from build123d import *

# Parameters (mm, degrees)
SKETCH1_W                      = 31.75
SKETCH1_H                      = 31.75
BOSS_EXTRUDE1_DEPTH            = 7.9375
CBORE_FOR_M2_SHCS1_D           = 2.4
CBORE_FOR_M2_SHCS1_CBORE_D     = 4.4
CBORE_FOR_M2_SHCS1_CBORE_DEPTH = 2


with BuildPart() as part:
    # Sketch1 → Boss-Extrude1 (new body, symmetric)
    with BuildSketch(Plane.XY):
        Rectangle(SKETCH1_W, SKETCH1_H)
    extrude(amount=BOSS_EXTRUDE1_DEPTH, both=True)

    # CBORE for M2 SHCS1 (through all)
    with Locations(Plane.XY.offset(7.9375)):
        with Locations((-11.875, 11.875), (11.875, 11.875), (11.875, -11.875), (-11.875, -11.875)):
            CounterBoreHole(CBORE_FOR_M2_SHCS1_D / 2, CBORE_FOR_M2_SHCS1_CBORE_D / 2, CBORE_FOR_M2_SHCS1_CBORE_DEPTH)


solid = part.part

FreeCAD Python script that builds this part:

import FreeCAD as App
import Part
import Sketcher

V = App.Vector
Q = App.Units.Quantity

doc = App.newDocument("Part")
body = doc.addObject("PartDesign::Body", "Body")

sketch1 = body.newObject("Sketcher::SketchObject", "Sketch")
sketch1.AttachmentSupport = (doc.getObject("XY_Plane"), [""])
sketch1.MapMode = "FlatFace"
sketch1.addGeometry(Part.LineSegment(V(-16, 16, 0), V(-16, -16, 0)), False)
sketch1.addGeometry(Part.LineSegment(V(-16, -16, 0), V(16, -16, 0)), False)
sketch1.addGeometry(Part.LineSegment(V(16, -16, 0), V(16, 16, 0)), False)
sketch1.addGeometry(Part.LineSegment(V(16, 16, 0), V(-16, 16, 0)), False)
sketch1.addConstraint(Sketcher.Constraint("Coincident", 0, 2, 1, 1))
sketch1.addConstraint(Sketcher.Constraint("Coincident", 1, 2, 2, 1))
sketch1.addConstraint(Sketcher.Constraint("Coincident", 2, 2, 3, 1))
sketch1.addConstraint(Sketcher.Constraint("Coincident", 3, 2, 0, 1))
sketch1.addConstraint(Sketcher.Constraint("Vertical", 0))
sketch1.addConstraint(Sketcher.Constraint("Horizontal", 1))
sketch1.addConstraint(Sketcher.Constraint("Vertical", 2))
sketch1.addConstraint(Sketcher.Constraint("Horizontal", 3))
sketch1.addConstraint(Sketcher.Constraint("Symmetric", 0, 2, 2, 2, -1, 1))
sketch1.addConstraint(Sketcher.Constraint("Equal", 3, 0))
sketch1.addConstraint(Sketcher.Constraint("DistanceX", 1, 1, 1, 2, Q("1.25 in")))
pad1 = body.newObject("PartDesign::Pad", "Pad")
pad1.Profile = sketch1
pad1.Length = Q("0.625 in")
pad1.Midplane = True

sketch2 = body.newObject("Sketcher::SketchObject", "Sketch001")
sketch2.AttachmentSupport = (doc.getObject("XY_Plane"), [""])
sketch2.MapMode = "FlatFace"
sketch2.AttachmentOffset = App.Placement(V(0, 0, 0.3125 * 25.4), App.Rotation())
sketch2.addGeometry(Part.Circle(V(-11.9, 11.9, 0), V(0, 0, 1), 1.2), False)
sketch2.addGeometry(Part.Circle(V(11.9, 11.9, 0), V(0, 0, 1), 1.2), False)
sketch2.addGeometry(Part.Circle(V(11.9, -11.9, 0), V(0, 0, 1), 1.2), False)
sketch2.addGeometry(Part.Circle(V(-11.9, -11.9, 0), V(0, 0, 1), 1.2), False)
sketch2.addConstraint(Sketcher.Constraint("Equal", 0, 1))
sketch2.addConstraint(Sketcher.Constraint("Equal", 1, 2))
sketch2.addConstraint(Sketcher.Constraint("Equal", 2, 3))
sketch2.addConstraint(Sketcher.Constraint("Symmetric", 0, 3, 2, 3, -1, 1))
sketch2.addConstraint(Sketcher.Constraint("Symmetric", 1, 3, 3, 3, -1, 1))
sketch2.addConstraint(Sketcher.Constraint("Symmetric", 0, 3, 1, 3, -2))
sketch2.addConstraint(Sketcher.Constraint("Diameter", 0, Q("2.4 mm")))
sketch2.addConstraint(Sketcher.Constraint("DistanceX", 0, 3, -1, 1, Q("11.875 mm")))
sketch2.addConstraint(Sketcher.Constraint("DistanceY", -1, 1, 0, 3, Q("11.875 mm")))
doc.recompute()
hole = body.newObject("PartDesign::Hole", "Hole")
hole.Profile = sketch2
hole.ThreadType = "None"
hole.Diameter = 2.4
hole.DepthType = "ThroughAll"
hole.HoleCutType = "Counterbore"
hole.HoleCutDiameter = 4.4
hole.HoleCutDepth = 2

doc.recompute()
